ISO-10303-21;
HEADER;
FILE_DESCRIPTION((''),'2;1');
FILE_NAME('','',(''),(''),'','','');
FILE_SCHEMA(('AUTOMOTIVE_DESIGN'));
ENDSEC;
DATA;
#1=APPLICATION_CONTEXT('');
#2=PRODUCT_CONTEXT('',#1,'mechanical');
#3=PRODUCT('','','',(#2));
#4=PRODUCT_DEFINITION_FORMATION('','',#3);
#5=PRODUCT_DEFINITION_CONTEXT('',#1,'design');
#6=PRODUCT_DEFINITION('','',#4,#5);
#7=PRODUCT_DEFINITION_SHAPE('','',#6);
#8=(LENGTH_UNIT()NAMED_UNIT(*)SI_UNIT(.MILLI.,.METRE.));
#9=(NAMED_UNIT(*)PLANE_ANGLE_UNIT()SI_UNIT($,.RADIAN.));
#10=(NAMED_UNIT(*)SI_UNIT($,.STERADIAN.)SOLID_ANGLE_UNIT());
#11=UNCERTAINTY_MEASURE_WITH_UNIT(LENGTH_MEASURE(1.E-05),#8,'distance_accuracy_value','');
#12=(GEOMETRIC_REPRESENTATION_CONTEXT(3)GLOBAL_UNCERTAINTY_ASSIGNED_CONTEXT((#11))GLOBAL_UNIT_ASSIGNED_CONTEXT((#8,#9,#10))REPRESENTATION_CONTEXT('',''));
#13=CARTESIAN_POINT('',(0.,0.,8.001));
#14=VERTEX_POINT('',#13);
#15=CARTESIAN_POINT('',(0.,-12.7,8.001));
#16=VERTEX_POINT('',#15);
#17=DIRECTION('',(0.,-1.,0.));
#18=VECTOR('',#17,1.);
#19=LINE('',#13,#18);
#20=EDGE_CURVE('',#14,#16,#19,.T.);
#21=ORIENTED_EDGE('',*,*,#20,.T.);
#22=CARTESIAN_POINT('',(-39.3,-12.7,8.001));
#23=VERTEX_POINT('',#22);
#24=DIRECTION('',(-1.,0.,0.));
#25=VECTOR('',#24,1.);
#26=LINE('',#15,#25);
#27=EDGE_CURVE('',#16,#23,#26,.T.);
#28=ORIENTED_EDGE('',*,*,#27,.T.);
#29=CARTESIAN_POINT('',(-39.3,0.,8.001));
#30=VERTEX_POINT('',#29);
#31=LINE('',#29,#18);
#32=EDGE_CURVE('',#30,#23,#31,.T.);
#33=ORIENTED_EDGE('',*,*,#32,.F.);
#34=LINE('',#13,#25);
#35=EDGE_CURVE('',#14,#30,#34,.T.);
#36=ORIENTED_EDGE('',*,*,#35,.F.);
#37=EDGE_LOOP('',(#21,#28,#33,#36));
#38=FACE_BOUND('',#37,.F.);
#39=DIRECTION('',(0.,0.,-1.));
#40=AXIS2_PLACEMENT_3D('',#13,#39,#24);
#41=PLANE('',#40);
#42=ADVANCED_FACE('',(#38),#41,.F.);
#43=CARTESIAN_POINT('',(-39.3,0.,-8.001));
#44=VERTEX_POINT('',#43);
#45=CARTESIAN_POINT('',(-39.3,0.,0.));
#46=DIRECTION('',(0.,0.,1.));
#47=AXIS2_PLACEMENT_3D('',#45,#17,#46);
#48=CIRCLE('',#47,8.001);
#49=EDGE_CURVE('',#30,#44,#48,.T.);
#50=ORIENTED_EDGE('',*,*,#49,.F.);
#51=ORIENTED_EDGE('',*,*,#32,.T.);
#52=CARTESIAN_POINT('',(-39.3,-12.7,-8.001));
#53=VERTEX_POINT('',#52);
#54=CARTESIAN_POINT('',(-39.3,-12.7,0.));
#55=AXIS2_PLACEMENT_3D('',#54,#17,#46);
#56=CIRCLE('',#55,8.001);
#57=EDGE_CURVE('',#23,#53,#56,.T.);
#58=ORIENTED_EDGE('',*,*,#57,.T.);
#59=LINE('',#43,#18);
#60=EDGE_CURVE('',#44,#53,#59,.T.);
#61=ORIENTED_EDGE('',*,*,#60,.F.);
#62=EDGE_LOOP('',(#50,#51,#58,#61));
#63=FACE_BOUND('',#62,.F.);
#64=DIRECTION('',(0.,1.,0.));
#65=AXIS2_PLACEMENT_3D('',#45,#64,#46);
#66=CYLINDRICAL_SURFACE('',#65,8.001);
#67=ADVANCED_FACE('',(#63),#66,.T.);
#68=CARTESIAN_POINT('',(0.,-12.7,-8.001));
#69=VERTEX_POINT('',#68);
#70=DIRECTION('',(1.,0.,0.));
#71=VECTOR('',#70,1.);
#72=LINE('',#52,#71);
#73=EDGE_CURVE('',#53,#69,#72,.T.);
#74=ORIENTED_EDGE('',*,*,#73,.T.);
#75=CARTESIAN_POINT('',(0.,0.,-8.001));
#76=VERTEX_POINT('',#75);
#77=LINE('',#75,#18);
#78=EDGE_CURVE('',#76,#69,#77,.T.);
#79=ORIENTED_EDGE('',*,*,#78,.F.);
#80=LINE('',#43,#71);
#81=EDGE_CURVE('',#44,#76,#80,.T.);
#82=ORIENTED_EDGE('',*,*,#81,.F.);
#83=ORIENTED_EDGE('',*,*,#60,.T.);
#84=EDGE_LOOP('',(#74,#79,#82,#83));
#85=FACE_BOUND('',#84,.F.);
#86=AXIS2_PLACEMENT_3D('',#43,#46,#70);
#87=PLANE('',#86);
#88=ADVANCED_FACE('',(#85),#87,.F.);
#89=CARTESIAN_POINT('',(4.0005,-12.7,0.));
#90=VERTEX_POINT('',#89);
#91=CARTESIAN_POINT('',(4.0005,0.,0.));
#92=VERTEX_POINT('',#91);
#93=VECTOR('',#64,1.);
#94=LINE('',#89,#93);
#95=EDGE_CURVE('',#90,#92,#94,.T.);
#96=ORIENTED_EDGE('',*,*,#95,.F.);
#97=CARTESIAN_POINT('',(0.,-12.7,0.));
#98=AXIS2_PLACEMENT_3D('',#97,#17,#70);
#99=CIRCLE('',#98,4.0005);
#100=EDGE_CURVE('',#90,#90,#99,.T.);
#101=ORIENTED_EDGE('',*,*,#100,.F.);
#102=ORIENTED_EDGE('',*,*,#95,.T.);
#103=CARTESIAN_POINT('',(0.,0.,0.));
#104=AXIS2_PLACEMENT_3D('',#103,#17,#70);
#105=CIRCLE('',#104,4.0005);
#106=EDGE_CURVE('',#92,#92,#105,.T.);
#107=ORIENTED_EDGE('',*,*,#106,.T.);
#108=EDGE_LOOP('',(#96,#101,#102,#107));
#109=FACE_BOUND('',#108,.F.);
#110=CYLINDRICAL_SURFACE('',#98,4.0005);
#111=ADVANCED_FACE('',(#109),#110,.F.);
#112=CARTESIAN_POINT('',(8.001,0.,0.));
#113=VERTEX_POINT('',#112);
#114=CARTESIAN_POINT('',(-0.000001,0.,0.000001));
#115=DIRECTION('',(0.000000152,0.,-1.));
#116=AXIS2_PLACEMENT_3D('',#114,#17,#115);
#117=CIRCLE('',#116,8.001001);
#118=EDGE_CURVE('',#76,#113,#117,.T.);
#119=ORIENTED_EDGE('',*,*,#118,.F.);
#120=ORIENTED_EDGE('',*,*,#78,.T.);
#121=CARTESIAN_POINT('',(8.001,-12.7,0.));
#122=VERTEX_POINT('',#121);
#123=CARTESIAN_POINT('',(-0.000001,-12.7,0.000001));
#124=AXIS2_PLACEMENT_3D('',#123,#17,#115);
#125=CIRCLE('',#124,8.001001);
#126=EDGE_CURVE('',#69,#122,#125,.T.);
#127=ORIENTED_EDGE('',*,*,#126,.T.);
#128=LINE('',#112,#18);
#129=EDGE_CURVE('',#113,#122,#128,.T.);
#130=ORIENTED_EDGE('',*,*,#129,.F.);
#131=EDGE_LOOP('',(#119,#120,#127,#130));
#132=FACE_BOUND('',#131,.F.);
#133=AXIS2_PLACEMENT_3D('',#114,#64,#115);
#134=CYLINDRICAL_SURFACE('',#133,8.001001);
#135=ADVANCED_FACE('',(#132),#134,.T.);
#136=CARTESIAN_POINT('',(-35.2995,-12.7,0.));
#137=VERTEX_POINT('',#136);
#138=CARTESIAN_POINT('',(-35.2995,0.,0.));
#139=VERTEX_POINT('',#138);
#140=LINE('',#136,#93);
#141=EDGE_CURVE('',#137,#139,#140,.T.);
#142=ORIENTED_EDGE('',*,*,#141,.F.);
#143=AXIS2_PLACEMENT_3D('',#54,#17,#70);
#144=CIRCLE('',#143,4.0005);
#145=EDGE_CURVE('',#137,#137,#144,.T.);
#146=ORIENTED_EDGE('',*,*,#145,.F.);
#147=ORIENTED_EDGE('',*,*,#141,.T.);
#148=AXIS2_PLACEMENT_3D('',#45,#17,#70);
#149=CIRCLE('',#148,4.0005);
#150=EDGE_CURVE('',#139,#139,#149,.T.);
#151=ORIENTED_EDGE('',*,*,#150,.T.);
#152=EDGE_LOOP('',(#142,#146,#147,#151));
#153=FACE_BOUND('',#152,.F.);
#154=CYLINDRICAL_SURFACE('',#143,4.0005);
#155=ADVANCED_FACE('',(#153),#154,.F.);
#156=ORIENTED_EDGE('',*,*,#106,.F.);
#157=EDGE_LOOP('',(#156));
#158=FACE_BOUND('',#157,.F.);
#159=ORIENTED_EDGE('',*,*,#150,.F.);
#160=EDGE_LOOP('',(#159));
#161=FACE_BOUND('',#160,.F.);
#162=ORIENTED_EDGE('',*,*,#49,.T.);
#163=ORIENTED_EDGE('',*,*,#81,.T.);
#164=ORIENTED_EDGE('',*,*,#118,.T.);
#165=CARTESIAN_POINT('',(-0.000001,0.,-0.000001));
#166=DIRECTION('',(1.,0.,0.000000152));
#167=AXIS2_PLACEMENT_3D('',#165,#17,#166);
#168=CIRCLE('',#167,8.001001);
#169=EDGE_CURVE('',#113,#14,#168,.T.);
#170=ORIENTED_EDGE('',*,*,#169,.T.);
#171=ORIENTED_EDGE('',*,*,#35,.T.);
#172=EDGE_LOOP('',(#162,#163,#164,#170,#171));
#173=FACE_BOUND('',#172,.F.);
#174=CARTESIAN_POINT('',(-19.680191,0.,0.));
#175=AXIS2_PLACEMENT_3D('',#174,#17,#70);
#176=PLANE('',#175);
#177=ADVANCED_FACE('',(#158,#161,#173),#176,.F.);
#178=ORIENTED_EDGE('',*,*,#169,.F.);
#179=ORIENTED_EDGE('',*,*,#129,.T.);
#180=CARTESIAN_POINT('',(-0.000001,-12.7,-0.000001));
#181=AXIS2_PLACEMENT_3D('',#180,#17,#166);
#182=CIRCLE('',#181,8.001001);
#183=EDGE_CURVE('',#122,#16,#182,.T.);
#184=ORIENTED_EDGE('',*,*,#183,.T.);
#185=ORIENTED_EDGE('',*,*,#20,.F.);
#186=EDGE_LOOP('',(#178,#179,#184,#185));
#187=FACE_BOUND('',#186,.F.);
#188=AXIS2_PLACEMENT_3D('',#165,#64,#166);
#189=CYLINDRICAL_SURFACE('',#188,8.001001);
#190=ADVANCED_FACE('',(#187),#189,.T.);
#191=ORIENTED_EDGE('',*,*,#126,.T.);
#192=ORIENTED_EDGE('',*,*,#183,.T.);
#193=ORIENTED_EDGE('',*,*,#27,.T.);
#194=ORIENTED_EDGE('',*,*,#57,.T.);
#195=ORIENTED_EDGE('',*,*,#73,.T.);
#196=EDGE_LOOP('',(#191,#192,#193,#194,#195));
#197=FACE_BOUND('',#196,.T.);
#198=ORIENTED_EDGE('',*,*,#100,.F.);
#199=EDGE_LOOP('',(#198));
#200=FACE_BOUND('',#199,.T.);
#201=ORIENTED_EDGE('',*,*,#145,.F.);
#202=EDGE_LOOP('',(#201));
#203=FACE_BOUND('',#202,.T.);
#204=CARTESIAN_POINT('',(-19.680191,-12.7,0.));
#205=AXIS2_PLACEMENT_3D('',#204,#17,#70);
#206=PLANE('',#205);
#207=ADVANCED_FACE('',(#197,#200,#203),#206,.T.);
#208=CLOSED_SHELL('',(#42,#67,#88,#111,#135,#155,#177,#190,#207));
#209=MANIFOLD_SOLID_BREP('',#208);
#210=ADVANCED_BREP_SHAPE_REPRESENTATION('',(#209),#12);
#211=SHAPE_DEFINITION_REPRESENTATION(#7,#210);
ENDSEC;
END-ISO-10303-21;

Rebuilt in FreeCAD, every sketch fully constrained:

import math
import FreeCAD as App
import Part
import Sketcher
Q = App.Units.Quantity

doc = App.newDocument("Part")
body = doc.addObject("PartDesign::Body", "Body")

sketch1 = body.newObject("Sketcher::SketchObject", "Sketch")
sketch1.AttachmentSupport = (doc.getObject("XZ_Plane"), [""])
sketch1.MapMode = "FlatFace"
sketch1.addGeometry([
    Part.LineSegment(App.Vector(-39.3, -8.001, 0), App.Vector(0, -8.001, 0)),
    Part.ArcOfCircle(Part.Circle(App.Vector(-0.000001, 0.000001, 0), App.Vector(0, 0, 1), 8.001001), math.radians(-89.999991), math.radians(-0.000009)),
    Part.ArcOfCircle(Part.Circle(App.Vector(-0.000001, -0.000001, 0), App.Vector(0, 0, 1), 8.001001), math.radians(0.000009), math.radians(89.999991)),
    Part.LineSegment(App.Vector(0, 8.001, 0), App.Vector(-39.3, 8.001, 0)),
    Part.ArcOfCircle(Part.Circle(App.Vector(-39.3, 0, 0), App.Vector(0, 0, 1), 8.001), math.radians(90), math.radians(270)),
], False)
sketch1.addConstraint([
    Sketcher.Constraint("Tangent", 0, 2, 1, 1),
    Sketcher.Constraint("Tangent", 1, 2, 2, 1),
    Sketcher.Constraint("Tangent", 2, 2, 3, 1),
    Sketcher.Constraint("Tangent", 3, 2, 4, 1),
    Sketcher.Constraint("Tangent", 4, 2, 0, 1),
    Sketcher.Constraint("Horizontal", 0),
    Sketcher.Constraint("Horizontal", 3),
    Sketcher.Constraint("Coincident", 1, 3, -1, 1),
    Sketcher.Constraint("Equal", 1, 2),
    Sketcher.Constraint("PointOnObject", 1, 2, -1),
    Sketcher.Constraint("Radius", 1, Q("0.315 in")),
    Sketcher.Constraint("DistanceX", 0, 1, 0, 2, 39.3),
])
pad1 = body.newObject("PartDesign::Pad", "Pad")
pad1.Profile = sketch1
pad1.Length = Q("0.5 in")

sketch2 = body.newObject("Sketcher::SketchObject", "Sketch001")
sketch2.AttachmentSupport = (doc.getObject("XZ_Plane"), [""])
sketch2.MapMode = "FlatFace"
sketch2.AttachmentOffset = App.Placement(App.Vector(0, 0, 0.5 * 25.4), App.Rotation())
sketch2.addGeometry([
    Part.Circle(App.Vector(-39.3, 0, 0), App.Vector(0, 0, 1), 4.0005),
    Part.Circle(App.Vector(0, 0, 0), App.Vector(0, 0, 1), 4.0005),
], False)
sketch2.addConstraint([
    Sketcher.Constraint("Coincident", 1, 3, -1, 1),
    Sketcher.Constraint("Equal", 0, 1),
    Sketcher.Constraint("PointOnObject", 0, 3, -1),
    Sketcher.Constraint("Diameter", 0, Q("0.315 in")),
    Sketcher.Constraint("DistanceX", 0, 3, -1, 1, 39.3),
])
pocket1 = body.newObject("PartDesign::Pocket", "Pocket")
pocket1.Profile = sketch2
pocket1.Length = Q("0.5 in")

doc.recompute()
